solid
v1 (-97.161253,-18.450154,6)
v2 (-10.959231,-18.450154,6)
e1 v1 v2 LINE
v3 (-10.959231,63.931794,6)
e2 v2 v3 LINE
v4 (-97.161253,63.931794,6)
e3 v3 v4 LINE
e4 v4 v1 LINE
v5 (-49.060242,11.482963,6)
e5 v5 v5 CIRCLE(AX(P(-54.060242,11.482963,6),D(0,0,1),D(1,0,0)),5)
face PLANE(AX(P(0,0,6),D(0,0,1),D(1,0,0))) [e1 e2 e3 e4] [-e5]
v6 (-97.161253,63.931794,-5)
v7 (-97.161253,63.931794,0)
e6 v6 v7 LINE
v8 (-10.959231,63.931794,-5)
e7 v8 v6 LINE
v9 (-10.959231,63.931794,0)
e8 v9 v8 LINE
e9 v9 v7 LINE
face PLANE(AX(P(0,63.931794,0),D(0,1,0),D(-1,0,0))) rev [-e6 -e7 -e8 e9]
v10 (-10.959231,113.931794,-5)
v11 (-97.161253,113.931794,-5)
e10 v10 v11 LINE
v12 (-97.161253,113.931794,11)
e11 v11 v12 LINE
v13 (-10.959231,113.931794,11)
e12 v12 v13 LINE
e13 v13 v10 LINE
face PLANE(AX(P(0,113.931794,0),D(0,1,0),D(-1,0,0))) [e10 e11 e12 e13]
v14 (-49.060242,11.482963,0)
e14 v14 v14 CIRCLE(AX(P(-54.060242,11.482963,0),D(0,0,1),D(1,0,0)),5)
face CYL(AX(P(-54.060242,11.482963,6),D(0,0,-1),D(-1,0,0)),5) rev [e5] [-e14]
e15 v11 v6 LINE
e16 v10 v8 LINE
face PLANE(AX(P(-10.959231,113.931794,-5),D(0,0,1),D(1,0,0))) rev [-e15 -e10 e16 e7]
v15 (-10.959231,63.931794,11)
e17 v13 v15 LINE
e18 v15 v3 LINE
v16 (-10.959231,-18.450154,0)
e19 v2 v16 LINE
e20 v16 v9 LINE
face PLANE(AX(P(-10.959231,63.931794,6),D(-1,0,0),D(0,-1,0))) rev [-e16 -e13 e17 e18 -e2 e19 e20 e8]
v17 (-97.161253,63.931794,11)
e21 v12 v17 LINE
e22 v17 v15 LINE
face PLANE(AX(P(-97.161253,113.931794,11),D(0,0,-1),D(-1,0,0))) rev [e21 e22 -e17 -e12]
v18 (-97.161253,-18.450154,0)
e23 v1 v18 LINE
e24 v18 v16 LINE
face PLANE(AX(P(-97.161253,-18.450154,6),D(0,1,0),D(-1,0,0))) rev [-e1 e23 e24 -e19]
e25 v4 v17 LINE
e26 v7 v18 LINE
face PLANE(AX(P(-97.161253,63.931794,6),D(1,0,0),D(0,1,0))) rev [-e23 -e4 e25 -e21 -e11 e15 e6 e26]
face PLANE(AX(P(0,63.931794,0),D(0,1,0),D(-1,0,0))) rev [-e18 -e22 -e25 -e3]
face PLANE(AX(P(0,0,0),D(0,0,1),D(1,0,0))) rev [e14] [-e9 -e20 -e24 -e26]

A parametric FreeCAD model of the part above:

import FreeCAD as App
import Part
import Sketcher

V = App.Vector


def add_polygon(sketch, points):
    """Adds a closed chain of lines whose ends are joined by coincident constraints."""
    first, n = sketch.GeometryCount, len(points)
    for a, b in zip(points, points[1:] + points[:1]):
        sketch.addGeometry(Part.LineSegment(App.Vector(*a, 0), App.Vector(*b, 0)), False)
    for i in range(n):
        sketch.addConstraint(Sketcher.Constraint("Coincident", first + i, 2, first + (i + 1) % n, 1))

doc = App.newDocument("Part")
body = doc.addObject("PartDesign::Body", "Body")

sketch1 = body.newObject("Sketcher::SketchObject", "Sketch")
sketch1.AttachmentSupport = (doc.getObject("XY_Plane"), [""])
sketch1.MapMode = "FlatFace"
add_polygon(sketch1, [(-97.161253, 63.931794), (-97.161253, -18.450154), (-10.959231, -18.450154), (-10.959231, 63.931794)])
sketch1.addGeometry(Part.Circle(V(-54.060242, 11.482963, 0), V(0, 0, 1), 5), False)
sketch1.addConstraint([
    Sketcher.Constraint("Vertical", 0),
    Sketcher.Constraint("Horizontal", 1),
    Sketcher.Constraint("Vertical", 2),
    Sketcher.Constraint("Horizontal", 3),
    Sketcher.Constraint("Diameter", 4, 10.0),
    Sketcher.Constraint("DistanceX", 1, 1, 1, 2, 86.202022),
    Sketcher.Constraint("DistanceY", 0, 2, 0, 1, 82.381948),
    Sketcher.Constraint("DistanceX", 4, 3, -1, 1, 54.060242),
    Sketcher.Constraint("DistanceX", 1, 2, -1, 1, 10.959231),
    Sketcher.Constraint("DistanceY", 4, 3, 2, 2, 52.448831),
    Sketcher.Constraint("DistanceY", -1, 1, 4, 3, 11.482963),
])
pad1 = body.newObject("PartDesign::Pad", "Pad")
pad1.Profile = sketch1
pad1.Length = 6

sketch2 = body.newObject("Sketcher::SketchObject", "Sketch001")
sketch2.AttachmentSupport = (doc.getObject("XZ_Plane"), [""])
sketch2.MapMode = "FlatFace"
sketch2.AttachmentOffset = App.Placement(V(0, 0, -63.931794), App.Rotation())
add_polygon(sketch2, [(-97.161253, 11), (-10.959231, 11), (-10.959231, -5), (-97.161253, -5)])
sketch2.addConstraint([
    Sketcher.Constraint("Horizontal", 0),
    Sketcher.Constraint("Vertical", 1),
    Sketcher.Constraint("Horizontal", 2),
    Sketcher.Constraint("Vertical", 3),
    Sketcher.Constraint("DistanceY", 1, 2, 1, 1, 16.0),
    Sketcher.Constraint("DistanceY", -1, 1, 0, 2, 11.0),
    Sketcher.Constraint("DistanceX", 0, 1, 0, 2, 86.202022),
    Sketcher.Constraint("DistanceX", 0, 2, -1, 1, 10.959231),
])
pad2 = body.newObject("PartDesign::Pad", "Pad001")
pad2.Profile = sketch2
pad2.Length = 50
pad2.Reversed = True

doc.recompute()
